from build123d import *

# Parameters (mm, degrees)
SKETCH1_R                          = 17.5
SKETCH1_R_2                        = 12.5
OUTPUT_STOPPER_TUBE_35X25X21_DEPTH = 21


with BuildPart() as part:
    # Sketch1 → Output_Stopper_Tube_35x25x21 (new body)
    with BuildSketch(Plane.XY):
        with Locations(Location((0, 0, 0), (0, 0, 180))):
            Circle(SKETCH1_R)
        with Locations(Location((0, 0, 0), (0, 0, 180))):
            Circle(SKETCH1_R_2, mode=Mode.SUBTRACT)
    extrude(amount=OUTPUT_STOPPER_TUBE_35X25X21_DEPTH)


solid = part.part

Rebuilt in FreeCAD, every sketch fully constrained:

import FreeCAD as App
import Part
import Sketcher
from FreeCAD import Vector
Q = App.Units.Quantity

doc = App.newDocument("Part")
params = doc.addObject("Spreadsheet::Sheet", "Params")
for row, (alias, value) in enumerate([
    ("sketch1_diameter", "35 mm"),
    ("sketch1_diameter2", "25 mm"),
    ("pad1_length", "21 mm"),
], start=1):
    params.set(f"A{row}", alias)
    params.set(f"B{row}", "=" + value)
    params.setAlias(f"B{row}", alias)

body = doc.addObject("PartDesign::Body", "Body")

# Sketch on XY plane
sketch1 = body.newObject("Sketcher::SketchObject", "Sketch")
sketch1.AttachmentSupport = (doc.getObject("XY_Plane"), [""])
sketch1.MapMode = "FlatFace"
sketch1.addGeometry(Part.Circle(Vector(0, 0, 0), Vector(0, 0, 1), 18), False)
sketch1.addGeometry(Part.Circle(Vector(0, 0, 0), Vector(0, 0, 1), 12), False)
sketch1.addConstraint(Sketcher.Constraint("Coincident", 0, 3, -1, 1))
sketch1.addConstraint(Sketcher.Constraint("Coincident", 1, 3, -1, 1))
sketch1.addConstraint(Sketcher.Constraint("Diameter", 0, Q("35 mm")))
sketch1.addConstraint(Sketcher.Constraint("Diameter", 1, Q("25 mm")))
sketch1.setExpression("Constraints[2]", "Params.sketch1_diameter")
sketch1.setExpression("Constraints[3]", "Params.sketch1_diameter2")
pad1 = body.newObject("PartDesign::Pad", "Pad")
pad1.Profile = sketch1
pad1.setExpression("Length", "Params.pad1_length")

doc.recompute()
